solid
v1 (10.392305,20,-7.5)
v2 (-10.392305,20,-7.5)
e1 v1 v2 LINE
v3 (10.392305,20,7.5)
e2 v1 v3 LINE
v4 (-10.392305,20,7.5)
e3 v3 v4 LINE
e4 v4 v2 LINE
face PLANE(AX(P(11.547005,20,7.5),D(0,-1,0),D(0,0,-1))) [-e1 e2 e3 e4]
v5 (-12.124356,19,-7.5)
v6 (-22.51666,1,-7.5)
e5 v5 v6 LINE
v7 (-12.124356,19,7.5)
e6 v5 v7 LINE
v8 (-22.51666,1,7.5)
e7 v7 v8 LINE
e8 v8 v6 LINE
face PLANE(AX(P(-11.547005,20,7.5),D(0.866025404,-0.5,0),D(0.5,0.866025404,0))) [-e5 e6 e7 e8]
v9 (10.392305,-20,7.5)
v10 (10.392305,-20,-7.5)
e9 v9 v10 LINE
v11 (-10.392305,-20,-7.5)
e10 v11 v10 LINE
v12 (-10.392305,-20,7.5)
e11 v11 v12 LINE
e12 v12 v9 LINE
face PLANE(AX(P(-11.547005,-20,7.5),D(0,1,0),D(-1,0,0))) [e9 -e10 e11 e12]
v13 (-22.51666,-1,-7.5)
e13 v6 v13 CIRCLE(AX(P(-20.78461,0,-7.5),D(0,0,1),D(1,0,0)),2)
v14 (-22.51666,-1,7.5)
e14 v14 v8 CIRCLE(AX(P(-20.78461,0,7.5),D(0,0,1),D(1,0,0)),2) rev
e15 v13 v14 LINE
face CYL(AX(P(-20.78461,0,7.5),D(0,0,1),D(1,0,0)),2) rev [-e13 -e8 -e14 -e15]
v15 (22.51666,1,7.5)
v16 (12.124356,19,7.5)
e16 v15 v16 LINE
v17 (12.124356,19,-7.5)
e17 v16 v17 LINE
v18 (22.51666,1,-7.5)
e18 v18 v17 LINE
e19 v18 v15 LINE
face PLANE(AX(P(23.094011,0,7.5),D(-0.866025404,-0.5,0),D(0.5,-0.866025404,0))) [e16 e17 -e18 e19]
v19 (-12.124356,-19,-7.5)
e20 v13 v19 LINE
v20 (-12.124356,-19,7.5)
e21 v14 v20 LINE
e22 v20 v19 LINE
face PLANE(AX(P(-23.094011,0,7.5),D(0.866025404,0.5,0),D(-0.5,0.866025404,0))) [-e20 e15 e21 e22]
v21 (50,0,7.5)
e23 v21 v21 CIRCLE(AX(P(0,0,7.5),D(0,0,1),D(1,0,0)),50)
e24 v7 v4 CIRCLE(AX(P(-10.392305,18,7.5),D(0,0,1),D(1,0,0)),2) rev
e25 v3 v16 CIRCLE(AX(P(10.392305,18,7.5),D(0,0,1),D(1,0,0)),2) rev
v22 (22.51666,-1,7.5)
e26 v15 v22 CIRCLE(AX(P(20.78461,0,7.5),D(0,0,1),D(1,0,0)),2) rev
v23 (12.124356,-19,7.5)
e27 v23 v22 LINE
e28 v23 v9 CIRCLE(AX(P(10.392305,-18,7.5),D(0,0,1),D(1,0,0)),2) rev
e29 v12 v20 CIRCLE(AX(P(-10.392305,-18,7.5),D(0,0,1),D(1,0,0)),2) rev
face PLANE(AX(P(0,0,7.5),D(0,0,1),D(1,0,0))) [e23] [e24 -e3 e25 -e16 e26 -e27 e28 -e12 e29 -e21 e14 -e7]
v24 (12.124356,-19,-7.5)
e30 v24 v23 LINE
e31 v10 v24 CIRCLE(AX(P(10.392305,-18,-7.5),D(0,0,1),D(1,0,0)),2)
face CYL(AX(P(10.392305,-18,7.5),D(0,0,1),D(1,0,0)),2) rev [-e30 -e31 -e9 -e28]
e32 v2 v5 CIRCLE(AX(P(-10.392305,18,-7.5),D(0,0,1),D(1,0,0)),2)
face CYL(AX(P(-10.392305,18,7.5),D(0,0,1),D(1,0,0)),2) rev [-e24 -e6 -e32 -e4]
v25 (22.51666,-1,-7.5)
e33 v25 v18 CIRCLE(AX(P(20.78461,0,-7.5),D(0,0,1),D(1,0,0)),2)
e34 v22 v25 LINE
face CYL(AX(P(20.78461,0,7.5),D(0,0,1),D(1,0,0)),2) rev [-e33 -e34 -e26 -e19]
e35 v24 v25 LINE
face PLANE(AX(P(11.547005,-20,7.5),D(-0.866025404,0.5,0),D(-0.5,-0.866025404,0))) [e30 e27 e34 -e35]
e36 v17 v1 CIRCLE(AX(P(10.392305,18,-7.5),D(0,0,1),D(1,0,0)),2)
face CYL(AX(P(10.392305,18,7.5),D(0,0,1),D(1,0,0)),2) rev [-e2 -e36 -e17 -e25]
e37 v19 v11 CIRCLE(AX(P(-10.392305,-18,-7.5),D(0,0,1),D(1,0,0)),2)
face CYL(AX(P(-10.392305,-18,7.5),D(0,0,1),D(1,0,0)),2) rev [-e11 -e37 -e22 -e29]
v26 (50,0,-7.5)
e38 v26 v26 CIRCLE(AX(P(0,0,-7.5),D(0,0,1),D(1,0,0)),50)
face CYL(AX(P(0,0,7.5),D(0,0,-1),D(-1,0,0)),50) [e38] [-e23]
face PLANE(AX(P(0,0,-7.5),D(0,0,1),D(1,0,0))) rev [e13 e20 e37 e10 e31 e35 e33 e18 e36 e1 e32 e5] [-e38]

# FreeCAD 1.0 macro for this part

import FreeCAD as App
import Part
import Sketcher
from FreeCAD import Vector
Q = App.Units.Quantity


def edges_at(feature, points):
    """Names of the edges that pass closest to the given points."""
    edges = feature.Shape.Edges
    near = lambda p: min(range(len(edges)), key=lambda i: edges[i].distToShape(Part.Vertex(*p))[0])
    return sorted({f"Edge{near(p) + 1}" for p in points})


def add_polygon(sketch, points):
    """Adds a closed chain of lines whose ends are joined by coincident constraints."""
    first, n = sketch.GeometryCount, len(points)
    for a, b in zip(points, points[1:] + points[:1]):
        sketch.addGeometry(Part.LineSegment(App.Vector(*a, 0), App.Vector(*b, 0)), False)
    for i in range(n):
        sketch.addConstraint(Sketcher.Constraint("Coincident", first + i, 2, first + (i + 1) % n, 1))

doc = App.newDocument("Part")
body = doc.addObject("PartDesign::Body", "Body")

sketch1 = body.newObject("Sketcher::SketchObject", "Sketch")
sketch1.AttachmentSupport = (doc.getObject("XY_Plane"), [""])
sketch1.MapMode = "FlatFace"
sketch1.addGeometry(Part.Circle(Vector(0, 0, 0), Vector(0, 0, 1), 50), False)
add_polygon(sketch1, [(11.547005, 20), (23.094011, 0), (11.547005, -20), (-11.547005, -20), (-23.094011, 0), (-11.547005, 20)])
sketch1.addConstraint([
    Sketcher.Constraint("Horizontal", 3),
    Sketcher.Constraint("Horizontal", 6),
    Sketcher.Constraint("Coincident", 0, 3, -1, 1),
    Sketcher.Constraint("Symmetric", 1, 2, 4, 2, -1, 1),
    Sketcher.Constraint("Symmetric", 2, 2, 5, 2, -1, 1),
    Sketcher.Constraint("PointOnObject", 1, 2, -1),
    Sketcher.Constraint("Parallel", 1, 4),
    Sketcher.Constraint("Vertical", 3, 2, 5, 2),
    Sketcher.Constraint("Diameter", 0, 100.0),
    Sketcher.Constraint("Angle", 1, Q("-60 deg")),
    Sketcher.Constraint("DistanceY", 2, 2, -1, 1, 20.0),
    Sketcher.Constraint("DistanceX", 3, 2, 3, 1, 23.094011),
])
pad1 = body.newObject("PartDesign::Pad", "Pad")
pad1.Profile = sketch1
pad1.Length = 15
pad1.Midplane = True
doc.recompute()

fillet = body.newObject("PartDesign::Fillet", "Fillet")
fillet.Base = (pad1, edges_at(pad1, [
    (23.094, 0, 0),
    (11.547, 20, 0),
    (-11.547, 20, 0),
    (-23.094, 0, 0),
    (-11.547, -20, 0),
    (11.547, -20, 0),
]))
fillet.Radius = 2

doc.recompute()
